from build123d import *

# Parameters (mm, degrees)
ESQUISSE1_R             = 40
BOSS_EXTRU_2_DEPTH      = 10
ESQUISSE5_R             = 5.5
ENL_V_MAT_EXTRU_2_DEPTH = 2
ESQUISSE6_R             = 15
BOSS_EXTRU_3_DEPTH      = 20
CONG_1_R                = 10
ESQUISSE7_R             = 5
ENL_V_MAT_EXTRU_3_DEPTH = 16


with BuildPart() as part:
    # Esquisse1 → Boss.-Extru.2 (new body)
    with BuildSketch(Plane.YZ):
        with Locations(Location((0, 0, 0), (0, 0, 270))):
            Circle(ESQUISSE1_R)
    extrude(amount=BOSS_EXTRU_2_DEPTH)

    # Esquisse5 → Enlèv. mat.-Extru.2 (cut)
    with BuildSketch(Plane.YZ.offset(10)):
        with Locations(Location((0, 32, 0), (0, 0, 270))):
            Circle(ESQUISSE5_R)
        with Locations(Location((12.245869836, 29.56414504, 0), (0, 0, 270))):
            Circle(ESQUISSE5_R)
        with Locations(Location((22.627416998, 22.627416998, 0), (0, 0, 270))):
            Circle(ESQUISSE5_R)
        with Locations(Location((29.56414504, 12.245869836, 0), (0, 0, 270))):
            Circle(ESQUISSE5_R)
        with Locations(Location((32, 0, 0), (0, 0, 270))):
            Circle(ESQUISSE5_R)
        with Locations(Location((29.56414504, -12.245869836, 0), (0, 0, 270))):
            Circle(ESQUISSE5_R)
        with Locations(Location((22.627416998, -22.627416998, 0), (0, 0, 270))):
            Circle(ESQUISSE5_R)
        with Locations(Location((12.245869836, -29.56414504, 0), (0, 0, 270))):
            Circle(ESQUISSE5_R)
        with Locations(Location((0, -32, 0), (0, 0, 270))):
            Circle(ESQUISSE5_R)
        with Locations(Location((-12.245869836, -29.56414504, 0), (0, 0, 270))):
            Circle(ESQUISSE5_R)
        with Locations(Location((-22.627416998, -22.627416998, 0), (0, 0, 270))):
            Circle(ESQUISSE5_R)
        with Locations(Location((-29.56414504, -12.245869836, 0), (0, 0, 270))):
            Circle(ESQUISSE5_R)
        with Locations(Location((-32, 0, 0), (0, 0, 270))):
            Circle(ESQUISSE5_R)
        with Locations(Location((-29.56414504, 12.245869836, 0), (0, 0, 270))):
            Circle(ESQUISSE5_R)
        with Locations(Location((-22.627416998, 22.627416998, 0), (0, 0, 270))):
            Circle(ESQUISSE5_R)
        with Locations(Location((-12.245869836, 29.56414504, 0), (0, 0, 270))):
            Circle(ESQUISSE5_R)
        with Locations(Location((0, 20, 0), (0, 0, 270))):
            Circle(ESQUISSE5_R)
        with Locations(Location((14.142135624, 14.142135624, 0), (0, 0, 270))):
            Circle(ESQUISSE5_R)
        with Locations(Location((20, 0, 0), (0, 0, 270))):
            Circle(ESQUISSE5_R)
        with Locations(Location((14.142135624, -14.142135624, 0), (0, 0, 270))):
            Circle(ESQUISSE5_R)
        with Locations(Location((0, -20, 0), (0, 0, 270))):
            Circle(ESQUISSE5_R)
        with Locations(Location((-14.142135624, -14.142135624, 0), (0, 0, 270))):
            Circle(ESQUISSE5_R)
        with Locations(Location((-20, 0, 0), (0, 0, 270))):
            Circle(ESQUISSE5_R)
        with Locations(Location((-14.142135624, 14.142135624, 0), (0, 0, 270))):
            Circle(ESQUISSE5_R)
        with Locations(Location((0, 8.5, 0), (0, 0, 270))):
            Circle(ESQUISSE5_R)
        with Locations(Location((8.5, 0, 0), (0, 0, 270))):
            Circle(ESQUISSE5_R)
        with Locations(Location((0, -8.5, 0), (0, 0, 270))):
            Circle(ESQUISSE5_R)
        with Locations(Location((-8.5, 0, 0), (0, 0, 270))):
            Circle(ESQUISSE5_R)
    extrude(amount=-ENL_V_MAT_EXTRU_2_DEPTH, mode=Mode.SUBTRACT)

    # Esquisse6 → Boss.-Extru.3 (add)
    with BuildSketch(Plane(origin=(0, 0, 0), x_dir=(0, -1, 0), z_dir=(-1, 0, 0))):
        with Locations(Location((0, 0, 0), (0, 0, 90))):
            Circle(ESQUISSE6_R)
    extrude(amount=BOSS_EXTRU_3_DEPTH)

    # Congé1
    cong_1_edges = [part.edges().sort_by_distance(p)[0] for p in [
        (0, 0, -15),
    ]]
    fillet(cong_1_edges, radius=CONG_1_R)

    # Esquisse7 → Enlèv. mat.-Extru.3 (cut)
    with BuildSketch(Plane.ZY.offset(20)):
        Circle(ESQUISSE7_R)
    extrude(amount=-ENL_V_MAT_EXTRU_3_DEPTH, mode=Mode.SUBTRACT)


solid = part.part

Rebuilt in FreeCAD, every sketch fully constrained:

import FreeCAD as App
import Part
import Sketcher
from FreeCAD import Vector


def edges_at(feature, points):
    """Names of the edges that pass closest to the given points."""
    edges = feature.Shape.Edges
    near = lambda p: min(range(len(edges)), key=lambda i: edges[i].distToShape(Part.Vertex(*p))[0])
    return sorted({f"Edge{near(p) + 1}" for p in points})

doc = App.newDocument("Part")
params = doc.addObject("Spreadsheet::Sheet", "Params")
for row, (alias, value) in enumerate([
    ("sketch1_diameter", "80 mm"),
    ("pad1_length", "10 mm"),
    ("sketch2_diameter", "11 mm"),
    ("pocket1_length", "2 mm"),
    ("sketch3_diameter", "30 mm"),
    ("pad2_length", "20 mm"),
    ("fillet_radius", "10 mm"),
    ("sketch4_diameter", "10 mm"),
    ("pocket2_length", "16 mm"),
], start=1):
    params.set(f"A{row}", alias)
    params.set(f"B{row}", "=" + value)
    params.setAlias(f"B{row}", alias)

body = doc.addObject("PartDesign::Body", "Body")

# Sketch on YZ plane
sketch1 = body.newObject("Sketcher::SketchObject", "Sketch")
sketch1.AttachmentSupport = (doc.getObject("YZ_Plane"), [""])
sketch1.MapMode = "FlatFace"
sketch1.addGeometry(Part.Circle(Vector(0, 0, 0), Vector(0, 0, 1), 40), False)
sketch1.addConstraint(Sketcher.Constraint("Coincident", 0, 3, -1, 1))
sketch1.addConstraint(Sketcher.Constraint("Diameter", 0, 80.0))
sketch1.setExpression("Constraints[1]", "Params.sketch1_diameter")
pad1 = body.newObject("PartDesign::Pad", "Pad")
pad1.Profile = sketch1
pad1.setExpression("Length", "Params.pad1_length")

# Sketch on YZ plane
sketch2 = body.newObject("Sketcher::SketchObject", "Sketch001")
sketch2.AttachmentSupport = (doc.getObject("YZ_Plane"), [""])
sketch2.MapMode = "FlatFace"
sketch2.AttachmentOffset = App.Placement(Vector(0, 0, 10), App.Rotation())
sketch2.addGeometry(Part.Circle(Vector(0, 32, 0), Vector(0, 0, 1), 5.5), False)
sketch2.addGeometry(Part.Circle(Vector(12.24587, 29.564145, 0), Vector(0, 0, 1), 5.5), False)
sketch2.addGeometry(Part.Circle(Vector(22.627417, 22.627417, 0), Vector(0, 0, 1), 5.5), False)
sketch2.addGeometry(Part.Circle(Vector(29.564145, 12.24587, 0), Vector(0, 0, 1), 5.5), False)
sketch2.addGeometry(Part.Circle(Vector(32, 0, 0), Vector(0, 0, 1), 5.5), False)
sketch2.addGeometry(Part.Circle(Vector(29.564145, -12.24587, 0), Vector(0, 0, 1), 5.5), False)
sketch2.addGeometry(Part.Circle(Vector(22.627417, -22.627417, 0), Vector(0, 0, 1), 5.5), False)
sketch2.addGeometry(Part.Circle(Vector(12.24587, -29.564145, 0), Vector(0, 0, 1), 5.5), False)
sketch2.addGeometry(Part.Circle(Vector(0, -32, 0), Vector(0, 0, 1), 5.5), False)
sketch2.addGeometry(Part.Circle(Vector(-12.24587, -29.564145, 0), Vector(0, 0, 1), 5.5), False)
sketch2.addGeometry(Part.Circle(Vector(-22.627417, -22.627417, 0), Vector(0, 0, 1), 5.5), False)
sketch2.addGeometry(Part.Circle(Vector(-29.564145, -12.24587, 0), Vector(0, 0, 1), 5.5), False)
sketch2.addGeometry(Part.Circle(Vector(-32, 0, 0), Vector(0, 0, 1), 5.5), False)
sketch2.addGeometry(Part.Circle(Vector(-29.564145, 12.24587, 0), Vector(0, 0, 1), 5.5), False)
sketch2.addGeometry(Part.Circle(Vector(-22.627417, 22.627417, 0), Vector(0, 0, 1), 5.5), False)
sketch2.addGeometry(Part.Circle(Vector(-12.24587, 29.564145, 0), Vector(0, 0, 1), 5.5), False)
sketch2.addGeometry(Part.Circle(Vector(0, 20, 0), Vector(0, 0, 1), 5.5), False)
sketch2.addGeometry(Part.Circle(Vector(14.142136, 14.142136, 0), Vector(0, 0, 1), 5.5), False)
sketch2.addGeometry(Part.Circle(Vector(20, 0, 0), Vector(0, 0, 1), 5.5), False)
sketch2.addGeometry(Part.Circle(Vector(14.142136, -14.142136, 0), Vector(0, 0, 1), 5.5), False)
sketch2.addGeometry(Part.Circle(Vector(0, -20, 0), Vector(0, 0, 1), 5.5), False)
sketch2.addGeometry(Part.Circle(Vector(-14.142136, -14.142136, 0), Vector(0, 0, 1), 5.5), False)
sketch2.addGeometry(Part.Circle(Vector(-20, 0, 0), Vector(0, 0, 1), 5.5), False)
sketch2.addGeometry(Part.Circle(Vector(-14.142136, 14.142136, 0), Vector(0, 0, 1), 5.5), False)
sketch2.addGeometry(Part.Circle(Vector(0, 8.5, 0), Vector(0, 0, 1), 5.5), False)
sketch2.addGeometry(Part.Circle(Vector(8.5, 0, 0), Vector(0, 0, 1), 5.5), False)
sketch2.addGeometry(Part.Circle(Vector(0, -8.5, 0), Vector(0, 0, 1), 5.5), False)
sketch2.addGeometry(Part.Circle(Vector(-8.5, 0, 0), Vector(0, 0, 1), 5.5), False)
sketch2.addConstraint(Sketcher.Constraint("Equal", 0, 1))
sketch2.addConstraint(Sketcher.Constraint("Equal", 1, 2))
sketch2.addConstraint(Sketcher.Constraint("Equal", 2, 3))
sketch2.addConstraint(Sketcher.Constraint("Equal", 3, 4))
sketch2.addConstraint(Sketcher.Constraint("Equal", 4, 5))
sketch2.addConstraint(Sketcher.Constraint("Equal", 5, 6))
sketch2.addConstraint(Sketcher.Constraint("Equal", 6, 7))
sketch2.addConstraint(Sketcher.Constraint("Equal", 7, 8))
sketch2.addConstraint(Sketcher.Constraint("Equal", 8, 9))
sketch2.addConstraint(Sketcher.Constraint("Equal", 9, 10))
sketch2.addConstraint(Sketcher.Constraint("Equal", 10, 11))
sketch2.addConstraint(Sketcher.Constraint("Equal", 11, 12))
sketch2.addConstraint(Sketcher.Constraint("Equal", 12, 13))
sketch2.addConstraint(Sketcher.Constraint("Equal", 13, 14))
sketch2.addConstraint(Sketcher.Constraint("Equal", 14, 15))
sketch2.addConstraint(Sketcher.Constraint("Equal", 15, 16))
sketch2.addConstraint(Sketcher.Constraint("Equal", 16, 17))
sketch2.addConstraint(Sketcher.Constraint("Equal", 17, 18))
sketch2.addConstraint(Sketcher.Constraint("Equal", 18, 19))
sketch2.addConstraint(Sketcher.Constraint("Equal", 19, 20))
sketch2.addConstraint(Sketcher.Constraint("Equal", 20, 21))
sketch2.addConstraint(Sketcher.Constraint("Equal", 21, 22))
sketch2.addConstraint(Sketcher.Constraint("Equal", 22, 23))
sketch2.addConstraint(Sketcher.Constraint("Equal", 23, 24))
sketch2.addConstraint(Sketcher.Constraint("Equal", 24, 25))
sketch2.addConstraint(Sketcher.Constraint("Equal", 25, 26))
sketch2.addConstraint(Sketcher.Constraint("Equal", 26, 27))
sketch2.addConstraint(Sketcher.Constraint("Symmetric", 0, 3, 8, 3, -1, 1))
sketch2.addConstraint(Sketcher.Constraint("Symmetric", 1, 3, 9, 3, -1, 1))
sketch2.addConstraint(Sketcher.Constraint("Symmetric", 2, 3, 10, 3, -1, 1))
sketch2.addConstraint(Sketcher.Constraint("Symmetric", 3, 3, 11, 3, -1, 1))
sketch2.addConstraint(Sketcher.Constraint("Symmetric", 4, 3, 12, 3, -1, 1))
sketch2.addConstraint(Sketcher.Constraint("Symmetric", 5, 3, 13, 3, -1, 1))
sketch2.addConstraint(Sketcher.Constraint("Symmetric", 6, 3, 14, 3, -1, 1))
sketch2.addConstraint(Sketcher.Constraint("Symmetric", 7, 3, 15, 3, -1, 1))
sketch2.addConstraint(Sketcher.Constraint("Symmetric", 16, 3, 20, 3, -1, 1))
sketch2.addConstraint(Sketcher.Constraint("Symmetric", 17, 3, 21, 3, -1, 1))
sketch2.addConstraint(Sketcher.Constraint("Symmetric", 18, 3, 22, 3, -1, 1))
sketch2.addConstraint(Sketcher.Constraint("Symmetric", 19, 3, 23, 3, -1, 1))
sketch2.addConstraint(Sketcher.Constraint("Symmetric", 24, 3, 26, 3, -1, 1))
sketch2.addConstraint(Sketcher.Constraint("Symmetric", 25, 3, 27, 3, -1, 1))
sketch2.addConstraint(Sketcher.Constraint("Symmetric", 7, 3, 9, 3, -2))
sketch2.addConstraint(Sketcher.Constraint("Symmetric", 6, 3, 10, 3, -2))
sketch2.addConstraint(Sketcher.Constraint("Symmetric", 5, 3, 11, 3, -2))
sketch2.addConstraint(Sketcher.Constraint("Symmetric", 19, 3, 21, 3, -2))
sketch2.addConstraint(Sketcher.Constraint("PointOnObject", 0, 3, -2))
sketch2.addConstraint(Sketcher.Constraint("PointOnObject", 4, 3, -1))
sketch2.addConstraint(Sketcher.Constraint("PointOnObject", 16, 3, -2))
sketch2.addConstraint(Sketcher.Constraint("PointOnObject", 18, 3, -1))
sketch2.addConstraint(Sketcher.Constraint("PointOnObject", 24, 3, -2))
sketch2.addConstraint(Sketcher.Constraint("PointOnObject", 25, 3, -1))
sketch2.addConstraint(Sketcher.Constraint("Diameter", 0, 11.0))
sketch2.addConstraint(Sketcher.Constraint("DistanceY", -1, 1, 0, 3, 32.0))
sketch2.addConstraint(Sketcher.Constraint("DistanceX", -1, 1, 4, 3, 32.0))
sketch2.addConstraint(Sketcher.Constraint("DistanceY", -1, 1, 16, 3, 20.0))
sketch2.addConstraint(Sketcher.Constraint("DistanceX", -1, 1, 18, 3, 20.0))
sketch2.addConstraint(Sketcher.Constraint("DistanceY", 26, 3, 24, 3, 17.0))
sketch2.addConstraint(Sketcher.Constraint("DistanceX", -1, 1, 25, 3, 8.5))
sketch2.addConstraint(Sketcher.Constraint("DistanceX", -1, 1, 1, 3, 12.24587))
sketch2.addConstraint(Sketcher.Constraint("DistanceY", -1, 1, 3, 3, 12.24587))
sketch2.addConstraint(Sketcher.Constraint("DistanceY", 2, 3, 1, 3, 6.936728))
sketch2.addConstraint(Sketcher.Constraint("DistanceX", 2, 3, 3, 3, 6.936728))
sketch2.addConstraint(Sketcher.Constraint("DistanceX", 17, 3, 2, 3, 8.485281))
sketch2.addConstraint(Sketcher.Constraint("DistanceY", 17, 3, 2, 3, 8.485281))
sketch2.addConstraint(Sketcher.Constraint("DistanceY", -1, 1, 1, 3, 29.564145))
sketch2.addConstraint(Sketcher.Constraint("DistanceX", -1, 1, 2, 3, 22.627417))
sketch2.setExpression("Constraints[51]", "Params.sketch2_diameter")
pocket1 = body.newObject("PartDesign::Pocket", "Pocket")
pocket1.Profile = sketch2
pocket1.setExpression("Length", "Params.pocket1_length")

# Sketch on YZ plane
sketch3 = body.newObject("Sketcher::SketchObject", "Sketch002")
sketch3.AttachmentSupport = (doc.getObject("YZ_Plane"), [""])
sketch3.MapMode = "FlatFace"
sketch3.addGeometry(Part.Circle(Vector(0, 0, 0), Vector(0, 0, 1), 15), False)
sketch3.addConstraint(Sketcher.Constraint("Coincident", 0, 3, -1, 1))
sketch3.addConstraint(Sketcher.Constraint("Diameter", 0, 30.0))
sketch3.setExpression("Constraints[1]", "Params.sketch3_diameter")
pad2 = body.newObject("PartDesign::Pad", "Pad001")
pad2.Profile = sketch3
pad2.setExpression("Length", "Params.pad2_length")
pad2.Reversed = True
doc.recompute()

fillet = body.newObject("PartDesign::Fillet", "Fillet")
fillet.Base = (pad2, edges_at(pad2, [(0, 0, -15)]))
fillet.setExpression("Radius", "Params.fillet_radius")

# Sketch on YZ plane
sketch4 = body.newObject("Sketcher::SketchObject", "Sketch003")
sketch4.AttachmentSupport = (doc.getObject("YZ_Plane"), [""])
sketch4.MapMode = "FlatFace"
sketch4.AttachmentOffset = App.Placement(Vector(0, 0, -20), App.Rotation())
sketch4.addGeometry(Part.Circle(Vector(0, 0, 0), Vector(0, 0, 1), 5), False)
sketch4.addConstraint(Sketcher.Constraint("Coincident", 0, 3, -1, 1))
sketch4.addConstraint(Sketcher.Constraint("Diameter", 0, 10.0))
sketch4.setExpression("Constraints[1]", "Params.sketch4_diameter")
pocket2 = body.newObject("PartDesign::Pocket", "Pocket001")
pocket2.Profile = sketch4
pocket2.setExpression("Length", "Params.pocket2_length")
pocket2.Reversed = True

doc.recompute()
